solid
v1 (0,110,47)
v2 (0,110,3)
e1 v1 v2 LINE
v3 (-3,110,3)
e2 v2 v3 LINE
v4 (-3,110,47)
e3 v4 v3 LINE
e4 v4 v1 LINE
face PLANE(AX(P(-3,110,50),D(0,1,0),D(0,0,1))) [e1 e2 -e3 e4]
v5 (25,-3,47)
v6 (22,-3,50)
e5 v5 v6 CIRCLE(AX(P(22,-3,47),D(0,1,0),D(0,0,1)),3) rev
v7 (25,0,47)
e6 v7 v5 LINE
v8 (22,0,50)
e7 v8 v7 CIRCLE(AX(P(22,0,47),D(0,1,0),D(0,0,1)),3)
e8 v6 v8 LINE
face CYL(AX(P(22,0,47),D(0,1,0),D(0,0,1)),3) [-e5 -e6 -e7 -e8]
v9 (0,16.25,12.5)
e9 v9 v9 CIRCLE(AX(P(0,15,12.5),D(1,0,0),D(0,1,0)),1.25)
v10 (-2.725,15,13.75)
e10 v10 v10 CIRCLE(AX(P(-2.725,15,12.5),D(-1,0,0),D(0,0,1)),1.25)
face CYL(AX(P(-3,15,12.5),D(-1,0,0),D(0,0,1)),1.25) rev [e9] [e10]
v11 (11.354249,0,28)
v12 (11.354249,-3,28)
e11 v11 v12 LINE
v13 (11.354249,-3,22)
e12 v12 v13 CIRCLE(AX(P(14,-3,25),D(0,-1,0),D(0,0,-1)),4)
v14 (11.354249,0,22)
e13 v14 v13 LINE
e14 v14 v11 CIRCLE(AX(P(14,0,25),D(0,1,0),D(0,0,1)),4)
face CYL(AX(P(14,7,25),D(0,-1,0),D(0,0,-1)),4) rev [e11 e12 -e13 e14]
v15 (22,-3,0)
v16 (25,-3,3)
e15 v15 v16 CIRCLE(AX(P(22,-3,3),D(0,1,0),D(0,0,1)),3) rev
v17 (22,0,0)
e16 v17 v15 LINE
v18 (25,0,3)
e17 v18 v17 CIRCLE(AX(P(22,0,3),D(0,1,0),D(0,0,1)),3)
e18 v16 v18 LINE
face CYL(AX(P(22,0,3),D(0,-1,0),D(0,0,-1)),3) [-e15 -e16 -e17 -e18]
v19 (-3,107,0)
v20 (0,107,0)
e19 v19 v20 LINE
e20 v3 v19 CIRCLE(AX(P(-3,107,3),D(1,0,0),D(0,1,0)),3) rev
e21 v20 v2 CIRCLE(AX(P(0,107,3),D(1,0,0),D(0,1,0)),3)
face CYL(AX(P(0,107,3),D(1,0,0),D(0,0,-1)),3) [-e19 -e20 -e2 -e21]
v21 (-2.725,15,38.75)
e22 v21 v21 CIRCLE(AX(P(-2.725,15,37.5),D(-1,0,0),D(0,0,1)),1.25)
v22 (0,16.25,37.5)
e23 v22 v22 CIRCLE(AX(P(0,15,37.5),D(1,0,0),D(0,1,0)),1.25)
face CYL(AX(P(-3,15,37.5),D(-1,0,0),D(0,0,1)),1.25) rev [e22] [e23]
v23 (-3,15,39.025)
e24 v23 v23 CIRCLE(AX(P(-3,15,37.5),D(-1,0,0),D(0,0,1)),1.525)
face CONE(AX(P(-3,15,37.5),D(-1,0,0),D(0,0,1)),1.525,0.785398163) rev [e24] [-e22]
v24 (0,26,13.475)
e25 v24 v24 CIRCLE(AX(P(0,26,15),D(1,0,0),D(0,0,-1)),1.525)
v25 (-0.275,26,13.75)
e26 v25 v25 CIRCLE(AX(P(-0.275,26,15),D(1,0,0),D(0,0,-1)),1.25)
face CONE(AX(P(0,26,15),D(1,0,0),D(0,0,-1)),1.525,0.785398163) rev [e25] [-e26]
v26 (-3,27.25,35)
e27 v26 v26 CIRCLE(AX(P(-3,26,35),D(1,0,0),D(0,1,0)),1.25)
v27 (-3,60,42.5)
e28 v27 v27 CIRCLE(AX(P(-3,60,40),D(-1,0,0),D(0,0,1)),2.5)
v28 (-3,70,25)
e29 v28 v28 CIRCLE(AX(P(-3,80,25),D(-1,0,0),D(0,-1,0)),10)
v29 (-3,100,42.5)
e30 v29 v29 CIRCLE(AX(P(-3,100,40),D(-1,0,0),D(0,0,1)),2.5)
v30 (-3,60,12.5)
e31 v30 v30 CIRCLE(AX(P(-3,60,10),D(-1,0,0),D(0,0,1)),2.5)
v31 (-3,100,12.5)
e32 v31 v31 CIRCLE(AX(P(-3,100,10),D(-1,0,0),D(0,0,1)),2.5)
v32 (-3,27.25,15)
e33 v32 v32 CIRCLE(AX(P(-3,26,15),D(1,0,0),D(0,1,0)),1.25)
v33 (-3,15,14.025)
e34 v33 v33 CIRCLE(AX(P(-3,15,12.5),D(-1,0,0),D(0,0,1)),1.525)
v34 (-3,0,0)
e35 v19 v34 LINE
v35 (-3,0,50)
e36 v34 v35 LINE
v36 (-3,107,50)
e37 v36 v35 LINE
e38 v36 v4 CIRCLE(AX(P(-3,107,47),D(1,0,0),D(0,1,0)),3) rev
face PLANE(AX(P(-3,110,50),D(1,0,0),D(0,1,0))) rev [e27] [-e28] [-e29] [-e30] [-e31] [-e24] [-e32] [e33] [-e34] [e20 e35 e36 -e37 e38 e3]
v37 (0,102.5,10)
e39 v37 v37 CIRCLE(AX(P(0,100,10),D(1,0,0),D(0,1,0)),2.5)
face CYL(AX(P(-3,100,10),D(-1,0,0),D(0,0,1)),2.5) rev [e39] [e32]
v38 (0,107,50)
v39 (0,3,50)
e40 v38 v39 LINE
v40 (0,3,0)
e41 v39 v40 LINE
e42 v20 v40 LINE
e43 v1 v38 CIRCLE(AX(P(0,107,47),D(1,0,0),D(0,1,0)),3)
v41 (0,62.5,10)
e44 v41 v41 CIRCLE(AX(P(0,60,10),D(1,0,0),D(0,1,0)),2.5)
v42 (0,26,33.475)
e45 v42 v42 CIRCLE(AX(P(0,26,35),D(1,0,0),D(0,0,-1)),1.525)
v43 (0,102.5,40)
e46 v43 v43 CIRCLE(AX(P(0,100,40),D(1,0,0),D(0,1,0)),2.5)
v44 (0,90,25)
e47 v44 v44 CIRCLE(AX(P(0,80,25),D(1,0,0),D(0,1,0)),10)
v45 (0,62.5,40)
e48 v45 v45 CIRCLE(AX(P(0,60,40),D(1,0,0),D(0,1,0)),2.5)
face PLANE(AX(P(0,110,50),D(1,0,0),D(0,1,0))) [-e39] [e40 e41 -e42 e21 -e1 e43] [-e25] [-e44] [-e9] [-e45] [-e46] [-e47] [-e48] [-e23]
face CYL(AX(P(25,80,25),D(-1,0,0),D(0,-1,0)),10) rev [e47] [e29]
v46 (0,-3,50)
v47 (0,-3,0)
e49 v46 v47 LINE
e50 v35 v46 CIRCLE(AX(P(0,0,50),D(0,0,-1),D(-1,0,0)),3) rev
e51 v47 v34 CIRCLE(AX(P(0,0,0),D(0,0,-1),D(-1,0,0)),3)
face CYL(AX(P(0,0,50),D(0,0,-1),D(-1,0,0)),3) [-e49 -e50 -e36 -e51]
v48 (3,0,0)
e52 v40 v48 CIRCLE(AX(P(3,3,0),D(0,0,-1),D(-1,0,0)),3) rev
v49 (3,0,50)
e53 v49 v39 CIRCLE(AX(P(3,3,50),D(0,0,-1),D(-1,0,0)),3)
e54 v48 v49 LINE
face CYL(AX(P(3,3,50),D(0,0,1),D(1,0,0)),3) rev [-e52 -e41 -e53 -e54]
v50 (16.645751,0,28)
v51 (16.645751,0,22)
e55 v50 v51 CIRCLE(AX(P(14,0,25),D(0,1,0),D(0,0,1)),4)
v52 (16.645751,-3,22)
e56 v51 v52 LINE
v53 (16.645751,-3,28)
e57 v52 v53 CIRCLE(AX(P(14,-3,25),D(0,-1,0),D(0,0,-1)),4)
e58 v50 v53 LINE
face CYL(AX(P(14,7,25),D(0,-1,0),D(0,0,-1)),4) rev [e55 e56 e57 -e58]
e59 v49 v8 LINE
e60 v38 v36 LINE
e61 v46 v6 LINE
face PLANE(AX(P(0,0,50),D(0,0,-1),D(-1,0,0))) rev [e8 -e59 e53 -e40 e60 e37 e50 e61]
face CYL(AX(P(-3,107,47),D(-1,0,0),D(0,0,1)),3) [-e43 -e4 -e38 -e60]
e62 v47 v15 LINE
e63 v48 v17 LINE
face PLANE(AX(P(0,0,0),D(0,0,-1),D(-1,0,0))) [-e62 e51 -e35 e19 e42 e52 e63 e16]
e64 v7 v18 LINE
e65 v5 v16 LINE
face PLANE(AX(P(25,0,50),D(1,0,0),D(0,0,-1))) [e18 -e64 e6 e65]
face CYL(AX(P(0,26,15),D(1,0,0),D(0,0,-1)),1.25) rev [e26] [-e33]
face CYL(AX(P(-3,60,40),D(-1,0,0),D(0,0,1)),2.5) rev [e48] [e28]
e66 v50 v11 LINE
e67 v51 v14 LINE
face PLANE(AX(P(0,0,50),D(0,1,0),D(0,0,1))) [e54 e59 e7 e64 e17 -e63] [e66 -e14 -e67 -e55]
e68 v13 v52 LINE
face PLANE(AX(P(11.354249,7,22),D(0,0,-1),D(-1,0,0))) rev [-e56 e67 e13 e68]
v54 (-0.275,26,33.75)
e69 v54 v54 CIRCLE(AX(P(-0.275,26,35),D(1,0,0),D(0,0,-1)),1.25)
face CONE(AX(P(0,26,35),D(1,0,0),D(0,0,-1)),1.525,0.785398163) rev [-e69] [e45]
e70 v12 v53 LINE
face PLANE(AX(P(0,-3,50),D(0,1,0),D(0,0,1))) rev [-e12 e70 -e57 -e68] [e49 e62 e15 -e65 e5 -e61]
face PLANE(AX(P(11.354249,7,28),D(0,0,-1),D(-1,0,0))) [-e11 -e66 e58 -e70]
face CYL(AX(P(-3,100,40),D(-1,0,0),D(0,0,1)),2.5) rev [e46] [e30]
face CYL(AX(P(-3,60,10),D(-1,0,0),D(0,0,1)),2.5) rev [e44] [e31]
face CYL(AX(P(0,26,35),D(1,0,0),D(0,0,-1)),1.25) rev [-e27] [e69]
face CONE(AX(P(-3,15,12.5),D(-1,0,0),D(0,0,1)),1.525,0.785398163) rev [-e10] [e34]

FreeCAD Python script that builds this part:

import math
import FreeCAD as App
import Part
import Sketcher
from FreeCAD import Vector
Q = App.Units.Quantity


def edges_at(feature, points):
    """Names of the edges that pass closest to the given points."""
    edges = feature.Shape.Edges
    near = lambda p: min(range(len(edges)), key=lambda i: edges[i].distToShape(Part.Vertex(*p))[0])
    return sorted({f"Edge{near(p) + 1}" for p in points})


def add_polygon(sketch, points):
    """Adds a closed chain of lines whose ends are joined by coincident constraints."""
    first, n = sketch.GeometryCount, len(points)
    for a, b in zip(points, points[1:] + points[:1]):
        sketch.addGeometry(Part.LineSegment(App.Vector(*a, 0), App.Vector(*b, 0)), False)
    for i in range(n):
        sketch.addConstraint(Sketcher.Constraint("Coincident", first + i, 2, first + (i + 1) % n, 1))

doc = App.newDocument("Part")
body = doc.addObject("PartDesign::Body", "Body")

sketch1 = body.newObject("Sketcher::SketchObject", "Sketch")
sketch1.AttachmentSupport = (doc.getObject("XY_Plane"), [""])
sketch1.MapMode = "FlatFace"
add_polygon(sketch1, [(0, 0), (0, 110), (-3, 110), (-3, -3), (25, -3), (25, 0)])
sketch1.addConstraint(Sketcher.Constraint("Vertical", 0))
sketch1.addConstraint(Sketcher.Constraint("Horizontal", 1))
sketch1.addConstraint(Sketcher.Constraint("Vertical", 2))
sketch1.addConstraint(Sketcher.Constraint("Horizontal", 3))
sketch1.addConstraint(Sketcher.Constraint("Vertical", 4))
sketch1.addConstraint(Sketcher.Constraint("Horizontal", 5))
sketch1.addConstraint(Sketcher.Constraint("Coincident", 5, 2, -1, 1))
sketch1.addConstraint(Sketcher.Constraint("Equal", 1, 4))
sketch1.addConstraint(Sketcher.Constraint("DistanceX", 1, 2, 1, 1, Q("3 mm")))
sketch1.addConstraint(Sketcher.Constraint("DistanceX", 3, 1, 3, 2, Q("28 mm")))
sketch1.addConstraint(Sketcher.Constraint("DistanceY", 0, 1, 0, 2, Q("110 mm")))
pad1 = body.newObject("PartDesign::Pad", "Pad")
pad1.Profile = sketch1
pad1.Length = 50

sketch2 = body.newObject("Sketcher::SketchObject", "Sketch001")
sketch2.AttachmentSupport = (doc.getObject("YZ_Plane"), [""])
sketch2.MapMode = "FlatFace"
sketch2.AttachmentOffset = App.Placement(Vector(0, 0, -3), App.Rotation())
sketch2.addGeometry(Part.Circle(Vector(100, 10, 0), Vector(0, 0, 1), 2.5), False)
sketch2.addGeometry(Part.Circle(Vector(100, 40, 0), Vector(0, 0, 1), 2.5), False)
sketch2.addGeometry(Part.Circle(Vector(60, 40, 0), Vector(0, 0, 1), 2.5), False)
sketch2.addGeometry(Part.Circle(Vector(60, 10, 0), Vector(0, 0, 1), 2.5), False)
sketch2.addConstraint(Sketcher.Constraint("Equal", 0, 1))
sketch2.addConstraint(Sketcher.Constraint("Equal", 1, 2))
sketch2.addConstraint(Sketcher.Constraint("Equal", 2, 3))
sketch2.addConstraint(Sketcher.Constraint("Horizontal", 1, 3, 2, 3))
sketch2.addConstraint(Sketcher.Constraint("Horizontal", 0, 3, 3, 3))
sketch2.addConstraint(Sketcher.Constraint("Vertical", 0, 3, 1, 3))
sketch2.addConstraint(Sketcher.Constraint("Vertical", 2, 3, 3, 3))
sketch2.addConstraint(Sketcher.Constraint("Diameter", 0, Q("5 mm")))
sketch2.addConstraint(Sketcher.Constraint("DistanceX", -1, 1, 0, 3, Q("100 mm")))
sketch2.addConstraint(Sketcher.Constraint("DistanceY", -1, 1, 0, 3, Q("10 mm")))
sketch2.addConstraint(Sketcher.Constraint("DistanceY", -1, 1, 1, 3, Q("40 mm")))
sketch2.addConstraint(Sketcher.Constraint("DistanceX", -1, 1, 2, 3, Q("60 mm")))
doc.recompute()
hole = body.newObject("PartDesign::Hole", "Hole")
hole.Profile = sketch2
hole.ThreadType = "None"
hole.Diameter = 5
hole.DepthType = "ThroughAll"
hole.Reversed = True

sketch3 = body.newObject("Sketcher::SketchObject", "Sketch002")
sketch3.AttachmentSupport = (doc.getObject("YZ_Plane"), [""])
sketch3.MapMode = "FlatFace"
sketch3.AttachmentOffset = App.Placement(Vector(0, 0, -3), App.Rotation())
sketch3.addGeometry(Part.Circle(Vector(80, 25, 0), Vector(0, 0, 1), 10), False)
sketch3.addConstraint(Sketcher.Constraint("Diameter", 0, Q("20 mm")))
sketch3.addConstraint(Sketcher.Constraint("DistanceX", -1, 1, 0, 3, Q("80 mm")))
sketch3.addConstraint(Sketcher.Constraint("DistanceY", -1, 1, 0, 3, Q("25 mm")))
pocket1 = body.newObject("PartDesign::Pocket", "Pocket")
pocket1.Profile = sketch3
pocket1.Type = "ThroughAll"
pocket1.Reversed = True

sketch4 = body.newObject("Sketcher::SketchObject", "Sketch003")
sketch4.AttachmentSupport = (doc.getObject("YZ_Plane"), [""])
sketch4.MapMode = "FlatFace"
sketch4.AttachmentOffset = App.Placement(Vector(0, 0, -3), App.Rotation())
sketch4.addGeometry(Part.Circle(Vector(15, 12.5, 0), Vector(0, 0, 1), 1.2), False)
sketch4.addGeometry(Part.Circle(Vector(15, 37.5, 0), Vector(0, 0, 1), 1.2), False)
sketch4.addConstraint(Sketcher.Constraint("Equal", 0, 1))
sketch4.addConstraint(Sketcher.Constraint("Vertical", 0, 3, 1, 3))
sketch4.addConstraint(Sketcher.Constraint("Diameter", 0, Q("2.5 mm")))
sketch4.addConstraint(Sketcher.Constraint("DistanceX", -1, 1, 0, 3, Q("15 mm")))
sketch4.addConstraint(Sketcher.Constraint("DistanceY", 0, 3, 1, 3, Q("25 mm")))
sketch4.addConstraint(Sketcher.Constraint("DistanceY", -1, 1, 0, 3, Q("12.5 mm")))
doc.recompute()
hole2 = body.newObject("PartDesign::Hole", "Hole001")
hole2.Profile = sketch4
hole2.ThreadType = "None"
hole2.Diameter = 2.5
hole2.DepthType = "Dimension"
hole2.Depth = 7.5
hole2.DrillPoint = "Angled"
hole2.DrillPointAngle = 118
hole2.HoleCutType = "Countersink"
hole2.HoleCutDiameter = 3.05
hole2.HoleCutCountersinkAngle = 90
hole2.Reversed = True

sketch5 = body.newObject("Sketcher::SketchObject", "Sketch004")
sketch5.AttachmentSupport = (doc.getObject("XZ_Plane"), [""])
sketch5.MapMode = "FlatFace"
sketch5.AttachmentOffset = App.Placement(Vector(0, 0, 3), App.Rotation())
sketch5.addGeometry(Part.LineSegment(Vector(11.4, 22, 0), Vector(16.6, 22, 0)), False)
sketch5.addGeometry(Part.ArcOfCircle(Part.Circle(Vector(14, 25, 0), Vector(0, 0, 1), 4), math.radians(-49), math.radians(49)), False)
sketch5.addGeometry(Part.LineSegment(Vector(16.6, 28, 0), Vector(11.4, 28, 0)), False)
sketch5.addGeometry(Part.ArcOfCircle(Part.Circle(Vector(14, 25, 0), Vector(0, 0, 1), 4), math.radians(131), math.radians(229)), False)
sketch5.addConstraint(Sketcher.Constraint("Coincident", 0, 2, 1, 1))
sketch5.addConstraint(Sketcher.Constraint("Coincident", 1, 2, 2, 1))
sketch5.addConstraint(Sketcher.Constraint("Coincident", 2, 2, 3, 1))
sketch5.addConstraint(Sketcher.Constraint("Coincident", 3, 2, 0, 1))
sketch5.addConstraint(Sketcher.Constraint("Horizontal", 0))
sketch5.addConstraint(Sketcher.Constraint("Horizontal", 2))
sketch5.addConstraint(Sketcher.Constraint("Coincident", 3, 3, 1, 3))
sketch5.addConstraint(Sketcher.Constraint("Equal", 1, 3))
sketch5.addConstraint(Sketcher.Constraint("Vertical", 0, 2, 1, 2))
sketch5.addConstraint(Sketcher.Constraint("Radius", 1, Q("4 mm")))
sketch5.addConstraint(Sketcher.Constraint("DistanceX", -1, 1, 1, 3, Q("14 mm")))
sketch5.addConstraint(Sketcher.Constraint("DistanceY", -1, 1, 1, 3, Q("25 mm")))
sketch5.addConstraint(Sketcher.Constraint("DistanceY", -1, 1, 0, 2, Q("22 mm")))
pocket2 = body.newObject("PartDesign::Pocket", "Pocket001")
pocket2.Profile = sketch5
pocket2.Length = 10
doc.recompute()

fillet = body.newObject("PartDesign::Fillet", "Fillet")
fillet.Base = (pocket2, edges_at(pocket2, [
    (-1.5, 110, 50),
    (-1.5, 110, 0),
    (25, -1.5, 0),
    (25, -1.5, 50),
]))
fillet.Radius = 3

sketch6 = body.newObject("Sketcher::SketchObject", "Sketch005")
sketch6.AttachmentSupport = (doc.getObject("YZ_Plane"), [""])
sketch6.MapMode = "FlatFace"
sketch6.addGeometry(Part.Circle(Vector(26, 35, 0), Vector(0, 0, 1), 1.2), False)
sketch6.addGeometry(Part.Circle(Vector(26, 15, 0), Vector(0, 0, 1), 1.2), False)
sketch6.addConstraint(Sketcher.Constraint("Equal", 0, 1))
sketch6.addConstraint(Sketcher.Constraint("Vertical", 0, 3, 1, 3))
sketch6.addConstraint(Sketcher.Constraint("Diameter", 0, Q("2.5 mm")))
sketch6.addConstraint(Sketcher.Constraint("DistanceX", -1, 1, 0, 3, Q("26 mm")))
sketch6.addConstraint(Sketcher.Constraint("DistanceY", -1, 1, 0, 3, Q("35 mm")))
sketch6.addConstraint(Sketcher.Constraint("DistanceY", -1, 1, 1, 3, Q("15 mm")))
doc.recompute()
hole3 = body.newObject("PartDesign::Hole", "Hole002")
hole3.Profile = sketch6
hole3.ThreadType = "None"
hole3.Diameter = 2.5
hole3.DepthType = "Dimension"
hole3.Depth = 7.5
hole3.DrillPoint = "Angled"
hole3.DrillPointAngle = 118
hole3.HoleCutType = "Countersink"
hole3.HoleCutDiameter = 3.05
hole3.HoleCutCountersinkAngle = 90
doc.recompute()

fillet2 = body.newObject("PartDesign::Fillet", "Fillet001")
fillet2.Base = (hole3, edges_at(hole3, [(-3, -3, 25)]))
fillet2.Radius = 3
doc.recompute()

fillet3 = body.newObject("PartDesign::Fillet", "Fillet002")
fillet3.Base = (fillet2, edges_at(fillet2, [(0, 0, 25)]))
fillet3.Radius = 3

doc.recompute()
